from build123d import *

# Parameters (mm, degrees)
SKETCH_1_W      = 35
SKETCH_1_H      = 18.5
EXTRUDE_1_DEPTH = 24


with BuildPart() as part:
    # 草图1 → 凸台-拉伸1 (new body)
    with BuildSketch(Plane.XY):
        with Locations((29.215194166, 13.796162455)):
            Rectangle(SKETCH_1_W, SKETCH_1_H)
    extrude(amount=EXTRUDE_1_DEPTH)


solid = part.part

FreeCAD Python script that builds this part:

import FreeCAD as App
import Part
import Sketcher

V = App.Vector


def add_polygon(sketch, points):
    """Adds a closed chain of lines whose ends are joined by coincident constraints."""
    first, n = sketch.GeometryCount, len(points)
    for a, b in zip(points, points[1:] + points[:1]):
        sketch.addGeometry(Part.LineSegment(App.Vector(*a, 0), App.Vector(*b, 0)), False)
    for i in range(n):
        sketch.addConstraint(Sketcher.Constraint("Coincident", first + i, 2, first + (i + 1) % n, 1))

doc = App.newDocument("Part")
params = doc.addObject("Spreadsheet::Sheet", "Params")
for row, (alias, value) in enumerate([
    ("sketch1_width", "35 mm"),
    ("sketch1_height", "18.5 mm"),
    ("pad1_length", "24 mm"),
], start=1):
    params.set(f"A{row}", alias)
    params.set(f"B{row}", "=" + value)
    params.setAlias(f"B{row}", alias)

body = doc.addObject("PartDesign::Body", "Body")

sketch1 = body.newObject("Sketcher::SketchObject", "Sketch")
sketch1.AttachmentSupport = (doc.getObject("XY_Plane"), [""])
sketch1.MapMode = "FlatFace"
add_polygon(sketch1, [(12, 23), (12, 5), (47, 5), (47, 23)])
sketch1.addConstraint([
    Sketcher.Constraint("Vertical", 0),
    Sketcher.Constraint("Horizontal", 1),
    Sketcher.Constraint("Vertical", 2),
    Sketcher.Constraint("Horizontal", 3),
    Sketcher.Constraint("DistanceX", 1, 1, 1, 2, 35.0),
    Sketcher.Constraint("DistanceY", 0, 2, 0, 1, 18.5),
    Sketcher.Constraint("DistanceX", -1, 1, 0, 2, 11.715194),
    Sketcher.Constraint("DistanceY", -1, 1, 0, 2, 4.546162),
])
sketch1.setExpression("Constraints[8]", "Params.sketch1_width")
sketch1.setExpression("Constraints[9]", "Params.sketch1_height")
pad1 = body.newObject("PartDesign::Pad", "Pad")
pad1.Profile = sketch1
pad1.setExpression("Length", "Params.pad1_length")

doc.recompute()
